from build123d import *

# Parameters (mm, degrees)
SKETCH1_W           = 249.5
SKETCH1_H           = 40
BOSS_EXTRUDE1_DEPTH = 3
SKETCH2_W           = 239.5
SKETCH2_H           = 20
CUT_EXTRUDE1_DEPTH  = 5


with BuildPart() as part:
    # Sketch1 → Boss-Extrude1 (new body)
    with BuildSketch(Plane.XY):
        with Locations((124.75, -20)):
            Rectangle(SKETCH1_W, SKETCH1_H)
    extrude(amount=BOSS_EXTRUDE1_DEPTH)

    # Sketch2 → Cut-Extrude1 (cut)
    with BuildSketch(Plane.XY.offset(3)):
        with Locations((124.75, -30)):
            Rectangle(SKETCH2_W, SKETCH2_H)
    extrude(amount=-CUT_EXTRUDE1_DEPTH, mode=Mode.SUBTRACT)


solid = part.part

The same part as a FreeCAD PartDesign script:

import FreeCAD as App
import Part
import Sketcher

V = App.Vector
Q = App.Units.Quantity

doc = App.newDocument("Part")
body = doc.addObject("PartDesign::Body", "Body")

# Sketch on XY plane
sketch1 = body.newObject("Sketcher::SketchObject", "Sketch")
sketch1.AttachmentSupport = (doc.getObject("XY_Plane"), [""])
sketch1.MapMode = "FlatFace"
sketch1.addGeometry([
    Part.LineSegment(V(0, 0, 0), V(0, -40, 0)),
    Part.LineSegment(V(0, -40, 0), V(250, -40, 0)),
    Part.LineSegment(V(250, -40, 0), V(250, 0, 0)),
    Part.LineSegment(V(250, 0, 0), V(0, 0, 0)),
], False)
sketch1.addConstraint([
    Sketcher.Constraint("Coincident", 0, 2, 1, 1),
    Sketcher.Constraint("Coincident", 1, 2, 2, 1),
    Sketcher.Constraint("Coincident", 2, 2, 3, 1),
    Sketcher.Constraint("Coincident", 3, 2, 0, 1),
    Sketcher.Constraint("Vertical", 0),
    Sketcher.Constraint("Horizontal", 1),
    Sketcher.Constraint("Vertical", 2),
    Sketcher.Constraint("Horizontal", 3),
    Sketcher.Constraint("Coincident", 3, 2, -1, 1),
    Sketcher.Constraint("DistanceY", 0, 2, 0, 1, Q("40 mm")),
    Sketcher.Constraint("DistanceX", 1, 1, 1, 2, Q("249.5 mm")),
])
pad1 = body.newObject("PartDesign::Pad", "Pad")
pad1.Profile = sketch1
pad1.Length = 3

# Sketch on XY plane
sketch2 = body.newObject("Sketcher::SketchObject", "Sketch001")
sketch2.AttachmentSupport = (doc.getObject("XY_Plane"), [""])
sketch2.MapMode = "FlatFace"
sketch2.AttachmentOffset = App.Placement(V(0, 0, 3), App.Rotation())
sketch2.addGeometry([
    Part.LineSegment(V(5, -20, 0), V(5, -40, 0)),
    Part.LineSegment(V(5, -40, 0), V(244, -40, 0)),
    Part.LineSegment(V(244, -40, 0), V(244, -20, 0)),
    Part.LineSegment(V(244, -20, 0), V(5, -20, 0)),
], False)
sketch2.addConstraint([
    Sketcher.Constraint("Coincident", 0, 2, 1, 1),
    Sketcher.Constraint("Coincident", 1, 2, 2, 1),
    Sketcher.Constraint("Coincident", 2, 2, 3, 1),
    Sketcher.Constraint("Coincident", 3, 2, 0, 1),
    Sketcher.Constraint("Vertical", 0),
    Sketcher.Constraint("Horizontal", 1),
    Sketcher.Constraint("Vertical", 2),
    Sketcher.Constraint("Horizontal", 3),
    Sketcher.Constraint("DistanceY", 0, 2, 0, 1, Q("20 mm")),
    Sketcher.Constraint("DistanceX", 1, 1, 1, 2, Q("239.5 mm")),
    Sketcher.Constraint("DistanceX", -1, 1, 0, 2, Q("5 mm")),
    Sketcher.Constraint("DistanceY", 0, 2, -1, 1, Q("40 mm")),
])
pocket1 = body.newObject("PartDesign::Pocket", "Pocket")
pocket1.Profile = sketch2
pocket1.Length = 5

doc.recompute()
